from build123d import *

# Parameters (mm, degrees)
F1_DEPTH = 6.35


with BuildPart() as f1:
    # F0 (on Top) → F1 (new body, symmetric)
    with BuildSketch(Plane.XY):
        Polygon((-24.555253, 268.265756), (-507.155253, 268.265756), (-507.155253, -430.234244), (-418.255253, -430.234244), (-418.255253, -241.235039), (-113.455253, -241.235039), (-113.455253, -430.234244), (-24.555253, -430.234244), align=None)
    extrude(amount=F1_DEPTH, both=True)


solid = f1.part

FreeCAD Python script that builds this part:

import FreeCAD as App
import Part
import Sketcher

V = App.Vector
Q = App.Units.Quantity


def add_polygon(sketch, points):
    """Adds a closed chain of lines whose ends are joined by coincident constraints."""
    first, n = sketch.GeometryCount, len(points)
    for a, b in zip(points, points[1:] + points[:1]):
        sketch.addGeometry(Part.LineSegment(App.Vector(*a, 0), App.Vector(*b, 0)), False)
    for i in range(n):
        sketch.addConstraint(Sketcher.Constraint("Coincident", first + i, 2, first + (i + 1) % n, 1))

doc = App.newDocument("Part")
params = doc.addObject("Spreadsheet::Sheet", "Params")
for row, (alias, value) in enumerate([
    ("sketch1_width", "19 in"),
    ("sketch1_width2", "12 in"),
    ("sketch1_height", "27.5 in"),
    ("pad1_length", "0.5 in"),
], start=1):
    params.set(f"A{row}", alias)
    params.set(f"B{row}", "=" + value)
    params.setAlias(f"B{row}", alias)

body = doc.addObject("PartDesign::Body", "Body")

sketch1 = body.newObject("Sketcher::SketchObject", "Sketch")
sketch1.AttachmentSupport = (doc.getObject("XY_Plane"), [""])
sketch1.MapMode = "FlatFace"
add_polygon(sketch1, [(-25, 268), (-507, 268), (-507, -430), (-418, -430), (-418, -241), (-113, -241), (-113, -430), (-25, -430)])
sketch1.addConstraint([
    Sketcher.Constraint("Horizontal", 0),
    Sketcher.Constraint("Vertical", 1),
    Sketcher.Constraint("Horizontal", 2),
    Sketcher.Constraint("Vertical", 3),
    Sketcher.Constraint("Horizontal", 4),
    Sketcher.Constraint("Vertical", 5),
    Sketcher.Constraint("Horizontal", 6),
    Sketcher.Constraint("Vertical", 7),
    Sketcher.Constraint("Horizontal", 2, 2, 5, 2),
    Sketcher.Constraint("Equal", 2, 6),
    Sketcher.Constraint("DistanceX", 0, 2, 0, 1, Q("19 in")),
    Sketcher.Constraint("DistanceX", 4, 1, 4, 2, Q("12 in")),
    Sketcher.Constraint("DistanceY", 1, 2, 1, 1, Q("27.5 in")),
    Sketcher.Constraint("DistanceY", 3, 1, 3, 2, 188.999205),
    Sketcher.Constraint("DistanceY", 3, 2, -1, 1, 241.235039),
    Sketcher.Constraint("DistanceX", 0, 2, -1, 1, 507.155253),
])
sketch1.setExpression("Constraints[18]", "Params.sketch1_width")
sketch1.setExpression("Constraints[19]", "Params.sketch1_width2")
sketch1.setExpression("Constraints[20]", "Params.sketch1_height")
pad1 = body.newObject("PartDesign::Pad", "Pad")
pad1.Profile = sketch1
pad1.setExpression("Length", "Params.pad1_length")
pad1.Midplane = True

doc.recompute()
